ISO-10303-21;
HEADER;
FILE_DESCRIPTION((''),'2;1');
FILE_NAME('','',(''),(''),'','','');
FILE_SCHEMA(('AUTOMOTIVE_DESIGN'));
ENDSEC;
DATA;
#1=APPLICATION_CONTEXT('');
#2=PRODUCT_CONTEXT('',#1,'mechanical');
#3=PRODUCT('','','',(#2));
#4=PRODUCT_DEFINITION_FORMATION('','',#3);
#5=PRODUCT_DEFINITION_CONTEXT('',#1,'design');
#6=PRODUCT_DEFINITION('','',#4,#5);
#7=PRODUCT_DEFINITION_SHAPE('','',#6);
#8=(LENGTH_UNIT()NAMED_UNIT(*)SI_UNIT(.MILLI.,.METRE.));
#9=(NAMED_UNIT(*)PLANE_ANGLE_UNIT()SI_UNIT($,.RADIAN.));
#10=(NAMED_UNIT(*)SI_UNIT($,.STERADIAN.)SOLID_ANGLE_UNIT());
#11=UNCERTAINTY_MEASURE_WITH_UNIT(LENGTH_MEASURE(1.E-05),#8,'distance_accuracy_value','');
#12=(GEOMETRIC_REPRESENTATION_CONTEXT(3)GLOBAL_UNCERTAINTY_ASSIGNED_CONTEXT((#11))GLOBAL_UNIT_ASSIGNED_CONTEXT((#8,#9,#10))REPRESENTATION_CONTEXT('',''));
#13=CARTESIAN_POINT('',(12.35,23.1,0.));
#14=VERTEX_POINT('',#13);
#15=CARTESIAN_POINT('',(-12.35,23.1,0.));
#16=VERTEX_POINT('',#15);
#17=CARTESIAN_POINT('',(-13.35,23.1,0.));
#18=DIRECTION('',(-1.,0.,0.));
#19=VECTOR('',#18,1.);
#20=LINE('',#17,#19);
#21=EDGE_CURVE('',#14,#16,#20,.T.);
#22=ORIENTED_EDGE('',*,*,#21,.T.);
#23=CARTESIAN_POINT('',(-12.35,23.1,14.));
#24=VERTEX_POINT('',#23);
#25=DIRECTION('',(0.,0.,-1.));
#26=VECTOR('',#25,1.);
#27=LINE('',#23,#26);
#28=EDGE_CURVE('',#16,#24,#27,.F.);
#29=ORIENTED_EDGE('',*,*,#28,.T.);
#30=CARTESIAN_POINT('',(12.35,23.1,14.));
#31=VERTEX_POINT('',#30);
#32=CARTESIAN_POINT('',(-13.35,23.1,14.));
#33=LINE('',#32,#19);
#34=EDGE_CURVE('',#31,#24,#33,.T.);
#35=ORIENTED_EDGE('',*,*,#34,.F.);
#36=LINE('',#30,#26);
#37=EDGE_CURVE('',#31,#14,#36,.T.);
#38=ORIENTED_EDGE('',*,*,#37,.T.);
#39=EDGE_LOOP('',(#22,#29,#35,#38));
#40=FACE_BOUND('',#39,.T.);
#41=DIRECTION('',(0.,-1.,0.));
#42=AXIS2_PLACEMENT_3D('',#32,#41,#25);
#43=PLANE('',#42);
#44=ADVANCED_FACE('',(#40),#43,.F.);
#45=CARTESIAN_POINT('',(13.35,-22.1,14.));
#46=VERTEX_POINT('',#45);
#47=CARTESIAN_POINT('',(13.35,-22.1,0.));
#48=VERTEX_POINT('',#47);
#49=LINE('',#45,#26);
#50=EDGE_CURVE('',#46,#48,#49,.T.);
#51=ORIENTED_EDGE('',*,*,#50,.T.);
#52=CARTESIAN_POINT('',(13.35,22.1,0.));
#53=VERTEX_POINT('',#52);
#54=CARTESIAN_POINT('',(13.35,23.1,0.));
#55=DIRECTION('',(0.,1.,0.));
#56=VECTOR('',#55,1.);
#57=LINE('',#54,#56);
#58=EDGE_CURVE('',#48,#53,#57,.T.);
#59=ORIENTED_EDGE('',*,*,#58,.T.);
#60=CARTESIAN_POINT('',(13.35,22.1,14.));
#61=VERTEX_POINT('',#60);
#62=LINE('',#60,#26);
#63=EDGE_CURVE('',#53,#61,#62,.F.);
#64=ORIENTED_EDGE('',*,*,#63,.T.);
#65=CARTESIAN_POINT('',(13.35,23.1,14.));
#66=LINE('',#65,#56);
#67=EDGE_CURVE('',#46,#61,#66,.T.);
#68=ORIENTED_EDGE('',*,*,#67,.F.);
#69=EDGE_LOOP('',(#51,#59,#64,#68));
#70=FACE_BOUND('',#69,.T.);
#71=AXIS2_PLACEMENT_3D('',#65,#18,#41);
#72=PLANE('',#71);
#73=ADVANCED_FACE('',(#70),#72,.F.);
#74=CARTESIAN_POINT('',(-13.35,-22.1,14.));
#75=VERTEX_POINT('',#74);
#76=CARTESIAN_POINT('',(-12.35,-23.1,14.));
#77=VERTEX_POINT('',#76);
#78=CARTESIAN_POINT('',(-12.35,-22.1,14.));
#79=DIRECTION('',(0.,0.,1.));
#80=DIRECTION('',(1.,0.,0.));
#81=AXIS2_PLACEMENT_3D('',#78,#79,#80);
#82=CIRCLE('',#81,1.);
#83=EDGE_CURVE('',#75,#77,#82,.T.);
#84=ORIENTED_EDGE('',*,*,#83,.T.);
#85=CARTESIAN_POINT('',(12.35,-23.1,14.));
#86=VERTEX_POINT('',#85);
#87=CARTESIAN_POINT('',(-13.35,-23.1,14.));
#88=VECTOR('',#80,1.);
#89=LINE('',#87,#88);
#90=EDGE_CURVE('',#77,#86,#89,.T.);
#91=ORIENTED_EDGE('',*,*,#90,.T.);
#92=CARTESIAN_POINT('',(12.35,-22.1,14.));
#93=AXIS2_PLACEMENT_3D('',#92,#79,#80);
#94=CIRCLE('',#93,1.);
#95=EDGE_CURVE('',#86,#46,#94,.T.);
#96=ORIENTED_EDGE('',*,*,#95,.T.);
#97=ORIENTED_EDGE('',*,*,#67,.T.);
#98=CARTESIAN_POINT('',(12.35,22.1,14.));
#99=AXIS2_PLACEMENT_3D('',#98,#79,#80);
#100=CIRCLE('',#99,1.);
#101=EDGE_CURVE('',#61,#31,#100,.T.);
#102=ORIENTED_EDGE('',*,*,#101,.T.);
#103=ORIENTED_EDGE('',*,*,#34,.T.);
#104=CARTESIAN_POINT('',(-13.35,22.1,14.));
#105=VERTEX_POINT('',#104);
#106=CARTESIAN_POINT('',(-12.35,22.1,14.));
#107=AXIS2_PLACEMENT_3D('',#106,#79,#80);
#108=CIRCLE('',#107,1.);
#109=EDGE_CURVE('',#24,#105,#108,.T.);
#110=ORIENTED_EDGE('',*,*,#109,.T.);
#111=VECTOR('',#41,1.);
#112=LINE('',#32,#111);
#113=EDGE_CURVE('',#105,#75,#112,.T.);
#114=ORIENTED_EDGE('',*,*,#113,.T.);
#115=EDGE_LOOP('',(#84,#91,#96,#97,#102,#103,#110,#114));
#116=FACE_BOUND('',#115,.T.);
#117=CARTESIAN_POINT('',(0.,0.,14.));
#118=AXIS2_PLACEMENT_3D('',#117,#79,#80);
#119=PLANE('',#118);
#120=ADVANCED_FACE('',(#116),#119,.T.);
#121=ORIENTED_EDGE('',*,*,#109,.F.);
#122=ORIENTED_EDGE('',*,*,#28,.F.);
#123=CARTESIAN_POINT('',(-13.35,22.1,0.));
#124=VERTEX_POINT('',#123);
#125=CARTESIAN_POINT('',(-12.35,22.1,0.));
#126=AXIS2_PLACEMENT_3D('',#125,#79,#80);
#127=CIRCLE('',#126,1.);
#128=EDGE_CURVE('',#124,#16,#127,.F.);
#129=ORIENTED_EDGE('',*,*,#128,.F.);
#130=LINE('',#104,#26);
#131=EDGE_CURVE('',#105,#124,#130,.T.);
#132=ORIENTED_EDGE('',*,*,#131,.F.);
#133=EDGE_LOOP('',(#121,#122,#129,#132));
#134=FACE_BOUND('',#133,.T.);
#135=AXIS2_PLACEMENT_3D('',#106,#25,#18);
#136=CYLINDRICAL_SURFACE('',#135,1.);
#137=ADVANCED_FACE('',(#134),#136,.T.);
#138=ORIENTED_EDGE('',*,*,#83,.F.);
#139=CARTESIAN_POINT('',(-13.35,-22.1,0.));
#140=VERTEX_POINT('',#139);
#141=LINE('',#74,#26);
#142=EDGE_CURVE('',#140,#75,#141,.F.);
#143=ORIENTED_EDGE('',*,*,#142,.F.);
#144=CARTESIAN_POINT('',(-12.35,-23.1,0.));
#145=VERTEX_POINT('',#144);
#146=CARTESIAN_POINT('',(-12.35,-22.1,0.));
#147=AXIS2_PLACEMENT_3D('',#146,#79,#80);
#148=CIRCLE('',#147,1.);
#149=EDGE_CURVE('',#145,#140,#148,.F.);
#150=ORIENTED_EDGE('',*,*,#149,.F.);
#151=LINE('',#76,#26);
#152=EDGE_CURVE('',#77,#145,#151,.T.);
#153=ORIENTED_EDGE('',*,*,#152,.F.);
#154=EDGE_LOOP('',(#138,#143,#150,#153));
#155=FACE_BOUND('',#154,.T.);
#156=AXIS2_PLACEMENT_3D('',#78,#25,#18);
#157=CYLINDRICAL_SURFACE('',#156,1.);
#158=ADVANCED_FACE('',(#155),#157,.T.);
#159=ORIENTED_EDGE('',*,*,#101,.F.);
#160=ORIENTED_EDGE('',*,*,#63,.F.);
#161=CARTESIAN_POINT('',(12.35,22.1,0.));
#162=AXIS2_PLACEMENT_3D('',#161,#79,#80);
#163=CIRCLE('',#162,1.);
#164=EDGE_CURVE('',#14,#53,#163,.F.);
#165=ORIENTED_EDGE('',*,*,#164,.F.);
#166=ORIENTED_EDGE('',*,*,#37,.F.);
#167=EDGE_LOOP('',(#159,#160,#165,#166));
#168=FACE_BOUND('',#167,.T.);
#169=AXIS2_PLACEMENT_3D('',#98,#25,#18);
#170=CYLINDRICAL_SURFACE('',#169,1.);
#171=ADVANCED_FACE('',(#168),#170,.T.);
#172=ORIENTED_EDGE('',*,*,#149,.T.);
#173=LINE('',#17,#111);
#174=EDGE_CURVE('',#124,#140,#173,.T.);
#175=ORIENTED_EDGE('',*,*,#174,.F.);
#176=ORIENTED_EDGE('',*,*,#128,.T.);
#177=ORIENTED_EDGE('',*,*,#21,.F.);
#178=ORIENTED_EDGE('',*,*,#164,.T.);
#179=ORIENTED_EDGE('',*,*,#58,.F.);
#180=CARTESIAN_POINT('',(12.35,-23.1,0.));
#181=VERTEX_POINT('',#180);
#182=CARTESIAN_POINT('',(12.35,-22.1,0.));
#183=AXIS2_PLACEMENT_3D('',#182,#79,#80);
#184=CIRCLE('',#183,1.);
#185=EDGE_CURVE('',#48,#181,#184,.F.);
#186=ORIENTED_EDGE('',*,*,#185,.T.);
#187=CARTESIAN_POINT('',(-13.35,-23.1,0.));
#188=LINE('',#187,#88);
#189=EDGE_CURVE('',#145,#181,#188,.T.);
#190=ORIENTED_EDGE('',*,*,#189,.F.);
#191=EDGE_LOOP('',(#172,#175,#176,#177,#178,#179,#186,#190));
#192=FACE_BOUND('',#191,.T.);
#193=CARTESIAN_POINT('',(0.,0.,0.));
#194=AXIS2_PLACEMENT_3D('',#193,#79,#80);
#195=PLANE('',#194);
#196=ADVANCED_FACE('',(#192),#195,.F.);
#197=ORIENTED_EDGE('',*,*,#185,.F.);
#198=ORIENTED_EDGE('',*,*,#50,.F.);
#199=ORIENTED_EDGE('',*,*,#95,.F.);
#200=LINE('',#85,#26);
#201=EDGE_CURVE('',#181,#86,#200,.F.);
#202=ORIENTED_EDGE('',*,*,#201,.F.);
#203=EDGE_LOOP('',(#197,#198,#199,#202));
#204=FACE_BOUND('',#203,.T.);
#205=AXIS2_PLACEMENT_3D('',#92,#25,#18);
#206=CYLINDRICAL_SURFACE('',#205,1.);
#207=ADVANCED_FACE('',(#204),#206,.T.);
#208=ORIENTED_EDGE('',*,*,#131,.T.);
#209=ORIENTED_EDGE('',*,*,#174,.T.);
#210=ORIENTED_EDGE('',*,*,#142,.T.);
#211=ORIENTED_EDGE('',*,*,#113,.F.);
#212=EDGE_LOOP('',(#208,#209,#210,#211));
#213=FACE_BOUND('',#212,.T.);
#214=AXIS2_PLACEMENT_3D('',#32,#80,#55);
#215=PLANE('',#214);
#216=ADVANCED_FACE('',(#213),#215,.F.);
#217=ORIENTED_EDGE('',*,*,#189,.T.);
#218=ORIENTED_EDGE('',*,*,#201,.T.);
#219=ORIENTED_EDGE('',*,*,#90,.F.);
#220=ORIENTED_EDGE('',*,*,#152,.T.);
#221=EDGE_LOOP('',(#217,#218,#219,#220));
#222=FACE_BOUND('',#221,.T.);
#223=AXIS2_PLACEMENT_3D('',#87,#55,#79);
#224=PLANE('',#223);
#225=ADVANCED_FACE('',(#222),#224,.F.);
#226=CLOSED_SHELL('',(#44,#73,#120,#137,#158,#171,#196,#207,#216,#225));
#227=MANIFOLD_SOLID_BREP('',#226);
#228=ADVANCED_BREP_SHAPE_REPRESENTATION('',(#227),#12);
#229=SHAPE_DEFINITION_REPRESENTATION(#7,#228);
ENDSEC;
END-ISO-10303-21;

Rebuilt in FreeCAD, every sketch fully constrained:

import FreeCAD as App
import Part
import Sketcher
from FreeCAD import Vector


def edges_at(feature, points):
    """Names of the edges that pass closest to the given points."""
    edges = feature.Shape.Edges
    near = lambda p: min(range(len(edges)), key=lambda i: edges[i].distToShape(Part.Vertex(*p))[0])
    return sorted({f"Edge{near(p) + 1}" for p in points})


def add_polygon(sketch, points):
    """Adds a closed chain of lines whose ends are joined by coincident constraints."""
    first, n = sketch.GeometryCount, len(points)
    for a, b in zip(points, points[1:] + points[:1]):
        sketch.addGeometry(Part.LineSegment(App.Vector(*a, 0), App.Vector(*b, 0)), False)
    for i in range(n):
        sketch.addConstraint(Sketcher.Constraint("Coincident", first + i, 2, first + (i + 1) % n, 1))

doc = App.newDocument("Part")
body = doc.addObject("PartDesign::Body", "Body")

# Sketch on XY plane
sketch1 = doc.addObject("Sketcher::SketchObject", "Sketch")
body.addObject(sketch1)
sketch1.AttachmentSupport = (doc.XY_Plane, [""])
sketch1.MapMode = "FlatFace"
add_polygon(sketch1, [(-13, 23), (-13, -23), (13, -23), (13, 23)])  # lines 0-3
sketch1.addConstraint(Sketcher.Constraint("Vertical", 0))
sketch1.addConstraint(Sketcher.Constraint("Horizontal", 1))
sketch1.addConstraint(Sketcher.Constraint("Vertical", 2))
sketch1.addConstraint(Sketcher.Constraint("Horizontal", 3))
sketch1.addConstraint(Sketcher.Constraint("Symmetric", 0, 2, 2, 2, -1, 1))
sketch1.addConstraint(Sketcher.Constraint("DistanceX", 1, 1, 1, 2, 26.7))
sketch1.addConstraint(Sketcher.Constraint("DistanceY", 0, 2, 0, 1, 46.2))
pad1 = doc.addObject("PartDesign::Pad", "Pad")
body.addObject(pad1)
pad1.Profile = sketch1
pad1.Length = 14
doc.recompute()

fillet = doc.addObject("PartDesign::Fillet", "Fillet")
body.addObject(fillet)
fillet.Base = (pad1, edges_at(pad1, [
    (-13.35, 23.1, 7),
    (13.35, 23.1, 7),
    (13.35, -23.1, 7),
    (-13.35, -23.1, 7),
]))
fillet.Radius = 1

doc.recompute()
